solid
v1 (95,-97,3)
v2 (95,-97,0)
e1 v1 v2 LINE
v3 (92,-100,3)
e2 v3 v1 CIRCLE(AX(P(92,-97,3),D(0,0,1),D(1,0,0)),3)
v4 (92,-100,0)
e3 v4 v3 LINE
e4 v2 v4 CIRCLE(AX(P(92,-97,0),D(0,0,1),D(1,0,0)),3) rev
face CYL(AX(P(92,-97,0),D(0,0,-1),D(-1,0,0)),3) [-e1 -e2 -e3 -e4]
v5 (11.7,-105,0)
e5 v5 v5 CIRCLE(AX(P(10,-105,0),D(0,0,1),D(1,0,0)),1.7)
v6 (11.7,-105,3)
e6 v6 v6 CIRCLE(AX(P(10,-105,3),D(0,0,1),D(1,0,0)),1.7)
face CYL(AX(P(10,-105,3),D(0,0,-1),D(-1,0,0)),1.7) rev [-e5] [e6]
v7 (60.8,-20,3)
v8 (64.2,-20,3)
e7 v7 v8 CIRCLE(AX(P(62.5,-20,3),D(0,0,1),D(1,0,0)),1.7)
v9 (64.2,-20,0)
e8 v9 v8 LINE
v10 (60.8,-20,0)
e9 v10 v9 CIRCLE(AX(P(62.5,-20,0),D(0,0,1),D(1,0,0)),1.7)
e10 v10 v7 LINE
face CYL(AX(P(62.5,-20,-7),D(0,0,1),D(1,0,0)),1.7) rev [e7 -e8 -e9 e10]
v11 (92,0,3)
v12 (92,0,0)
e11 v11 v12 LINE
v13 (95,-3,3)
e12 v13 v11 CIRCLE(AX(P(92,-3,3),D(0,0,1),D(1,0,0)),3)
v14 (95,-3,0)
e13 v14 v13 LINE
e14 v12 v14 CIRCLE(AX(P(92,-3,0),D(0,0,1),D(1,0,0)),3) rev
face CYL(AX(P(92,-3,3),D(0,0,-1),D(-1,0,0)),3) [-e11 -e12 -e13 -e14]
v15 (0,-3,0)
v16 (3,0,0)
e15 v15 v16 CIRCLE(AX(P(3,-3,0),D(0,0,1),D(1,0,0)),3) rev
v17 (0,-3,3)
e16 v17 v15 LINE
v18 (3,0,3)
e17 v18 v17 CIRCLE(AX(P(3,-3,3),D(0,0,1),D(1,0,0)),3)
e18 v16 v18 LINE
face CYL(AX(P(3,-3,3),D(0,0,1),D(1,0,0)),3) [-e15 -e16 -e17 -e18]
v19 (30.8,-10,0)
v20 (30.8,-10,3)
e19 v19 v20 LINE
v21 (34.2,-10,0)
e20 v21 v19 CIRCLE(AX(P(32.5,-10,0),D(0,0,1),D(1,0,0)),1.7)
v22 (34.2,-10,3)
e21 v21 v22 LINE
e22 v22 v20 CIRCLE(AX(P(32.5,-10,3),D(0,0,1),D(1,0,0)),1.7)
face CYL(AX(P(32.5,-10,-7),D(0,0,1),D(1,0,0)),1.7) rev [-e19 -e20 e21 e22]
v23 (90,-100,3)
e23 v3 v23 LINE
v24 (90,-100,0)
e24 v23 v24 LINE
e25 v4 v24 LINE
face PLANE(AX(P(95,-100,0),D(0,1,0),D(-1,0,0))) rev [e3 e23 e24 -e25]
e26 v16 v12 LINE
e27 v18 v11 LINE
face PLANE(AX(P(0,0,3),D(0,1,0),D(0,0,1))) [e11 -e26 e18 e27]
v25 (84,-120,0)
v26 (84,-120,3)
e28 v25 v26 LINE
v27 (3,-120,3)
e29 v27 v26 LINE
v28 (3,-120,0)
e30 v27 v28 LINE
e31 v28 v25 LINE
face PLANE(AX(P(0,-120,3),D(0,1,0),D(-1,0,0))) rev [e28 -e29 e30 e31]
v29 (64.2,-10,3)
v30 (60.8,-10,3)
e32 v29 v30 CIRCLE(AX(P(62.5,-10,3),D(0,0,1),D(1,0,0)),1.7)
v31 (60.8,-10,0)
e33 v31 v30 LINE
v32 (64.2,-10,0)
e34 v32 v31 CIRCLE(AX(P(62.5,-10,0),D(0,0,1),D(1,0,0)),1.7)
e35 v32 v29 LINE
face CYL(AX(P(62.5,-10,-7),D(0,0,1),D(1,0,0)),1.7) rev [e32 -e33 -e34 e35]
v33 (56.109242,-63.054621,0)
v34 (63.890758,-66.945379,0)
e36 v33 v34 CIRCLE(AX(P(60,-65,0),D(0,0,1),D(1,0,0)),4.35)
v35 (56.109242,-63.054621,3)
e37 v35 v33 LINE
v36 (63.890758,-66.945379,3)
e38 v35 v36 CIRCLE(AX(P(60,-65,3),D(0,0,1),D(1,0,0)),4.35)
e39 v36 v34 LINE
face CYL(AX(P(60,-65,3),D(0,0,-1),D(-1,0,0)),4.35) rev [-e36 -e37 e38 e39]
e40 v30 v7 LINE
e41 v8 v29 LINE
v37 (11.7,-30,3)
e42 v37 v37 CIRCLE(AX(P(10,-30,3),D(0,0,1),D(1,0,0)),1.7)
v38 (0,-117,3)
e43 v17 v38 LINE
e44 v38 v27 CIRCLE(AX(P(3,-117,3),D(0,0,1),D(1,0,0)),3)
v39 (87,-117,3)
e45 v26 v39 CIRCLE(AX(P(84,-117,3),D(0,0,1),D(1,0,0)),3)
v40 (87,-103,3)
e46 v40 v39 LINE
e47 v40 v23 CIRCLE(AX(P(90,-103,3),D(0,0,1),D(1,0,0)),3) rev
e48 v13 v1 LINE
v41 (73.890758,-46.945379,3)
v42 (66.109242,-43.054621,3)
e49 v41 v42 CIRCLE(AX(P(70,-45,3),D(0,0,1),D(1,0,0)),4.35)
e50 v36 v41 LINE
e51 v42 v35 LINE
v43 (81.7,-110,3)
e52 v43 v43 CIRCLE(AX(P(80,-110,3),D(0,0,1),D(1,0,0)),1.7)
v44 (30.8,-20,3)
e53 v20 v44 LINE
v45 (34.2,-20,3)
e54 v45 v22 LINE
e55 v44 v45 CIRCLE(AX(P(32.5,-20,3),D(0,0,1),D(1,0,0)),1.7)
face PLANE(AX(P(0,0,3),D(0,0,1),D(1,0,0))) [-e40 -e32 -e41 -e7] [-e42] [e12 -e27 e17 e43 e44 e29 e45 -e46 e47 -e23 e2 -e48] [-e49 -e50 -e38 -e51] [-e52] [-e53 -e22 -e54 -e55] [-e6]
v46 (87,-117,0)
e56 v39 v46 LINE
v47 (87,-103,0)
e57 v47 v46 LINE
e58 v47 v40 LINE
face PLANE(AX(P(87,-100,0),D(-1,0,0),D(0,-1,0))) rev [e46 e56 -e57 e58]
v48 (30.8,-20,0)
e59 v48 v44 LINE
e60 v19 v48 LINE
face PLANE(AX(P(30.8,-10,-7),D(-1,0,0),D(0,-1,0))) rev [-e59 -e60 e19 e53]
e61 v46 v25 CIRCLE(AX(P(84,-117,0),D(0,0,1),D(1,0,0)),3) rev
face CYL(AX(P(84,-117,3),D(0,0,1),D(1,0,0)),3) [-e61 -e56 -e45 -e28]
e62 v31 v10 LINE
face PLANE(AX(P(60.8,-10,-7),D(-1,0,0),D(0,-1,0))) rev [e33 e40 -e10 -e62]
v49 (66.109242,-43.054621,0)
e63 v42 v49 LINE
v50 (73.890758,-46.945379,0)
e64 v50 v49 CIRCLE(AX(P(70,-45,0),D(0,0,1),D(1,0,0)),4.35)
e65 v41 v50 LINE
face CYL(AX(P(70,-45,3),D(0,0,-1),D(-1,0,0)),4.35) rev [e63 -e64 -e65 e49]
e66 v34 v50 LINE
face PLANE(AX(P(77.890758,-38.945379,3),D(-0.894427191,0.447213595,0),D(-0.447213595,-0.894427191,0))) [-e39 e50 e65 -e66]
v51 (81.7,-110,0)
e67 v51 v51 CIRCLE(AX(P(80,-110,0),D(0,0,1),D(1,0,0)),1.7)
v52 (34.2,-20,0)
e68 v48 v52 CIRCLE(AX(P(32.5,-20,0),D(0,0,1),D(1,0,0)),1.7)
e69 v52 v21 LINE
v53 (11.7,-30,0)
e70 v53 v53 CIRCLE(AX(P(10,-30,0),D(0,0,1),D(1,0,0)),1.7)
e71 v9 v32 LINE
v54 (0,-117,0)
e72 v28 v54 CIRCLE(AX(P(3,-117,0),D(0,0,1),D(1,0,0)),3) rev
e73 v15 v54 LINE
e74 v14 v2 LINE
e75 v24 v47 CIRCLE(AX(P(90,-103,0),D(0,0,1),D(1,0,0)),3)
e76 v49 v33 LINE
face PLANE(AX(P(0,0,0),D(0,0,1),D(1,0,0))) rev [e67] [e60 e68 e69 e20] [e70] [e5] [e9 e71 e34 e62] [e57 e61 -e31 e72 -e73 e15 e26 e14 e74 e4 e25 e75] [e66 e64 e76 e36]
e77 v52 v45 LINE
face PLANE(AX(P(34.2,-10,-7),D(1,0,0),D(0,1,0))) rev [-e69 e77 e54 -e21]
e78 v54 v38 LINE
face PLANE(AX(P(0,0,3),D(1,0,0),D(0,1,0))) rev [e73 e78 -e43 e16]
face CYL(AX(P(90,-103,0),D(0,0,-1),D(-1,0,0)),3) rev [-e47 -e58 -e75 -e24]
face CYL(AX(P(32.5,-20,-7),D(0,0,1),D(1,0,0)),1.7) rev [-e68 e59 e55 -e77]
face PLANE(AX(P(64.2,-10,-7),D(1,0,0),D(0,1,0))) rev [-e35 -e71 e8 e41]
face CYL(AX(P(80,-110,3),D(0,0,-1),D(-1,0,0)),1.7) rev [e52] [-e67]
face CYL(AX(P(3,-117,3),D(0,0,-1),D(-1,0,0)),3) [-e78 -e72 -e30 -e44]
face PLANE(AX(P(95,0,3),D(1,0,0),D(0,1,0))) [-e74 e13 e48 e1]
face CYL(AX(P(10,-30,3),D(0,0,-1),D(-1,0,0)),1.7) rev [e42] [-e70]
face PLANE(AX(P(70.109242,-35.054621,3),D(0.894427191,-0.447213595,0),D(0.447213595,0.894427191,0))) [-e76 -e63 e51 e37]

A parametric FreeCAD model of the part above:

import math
import FreeCAD as App
import Part
import Sketcher

V = App.Vector


def edges_at(feature, points):
    """Names of the edges that pass closest to the given points."""
    edges = feature.Shape.Edges
    near = lambda p: min(range(len(edges)), key=lambda i: edges[i].distToShape(Part.Vertex(*p))[0])
    return sorted({f"Edge{near(p) + 1}" for p in points})


def add_polygon(sketch, points):
    """Adds a closed chain of lines whose ends are joined by coincident constraints."""
    first, n = sketch.GeometryCount, len(points)
    for a, b in zip(points, points[1:] + points[:1]):
        sketch.addGeometry(Part.LineSegment(App.Vector(*a, 0), App.Vector(*b, 0)), False)
    for i in range(n):
        sketch.addConstraint(Sketcher.Constraint("Coincident", first + i, 2, first + (i + 1) % n, 1))

doc = App.newDocument("Part")
body = doc.addObject("PartDesign::Body", "Body")

sketch1 = doc.addObject("Sketcher::SketchObject", "Sketch")
body.addObject(sketch1)
sketch1.AttachmentSupport = (doc.XY_Plane, [""])
sketch1.MapMode = "FlatFace"
add_polygon(sketch1, [(0, 0), (0, -120), (95, -120), (95, 0)])
sketch1.addGeometry(Part.Circle(V(10, -105, 0), V(0, 0, 1), 1.7), False)
sketch1.addGeometry(Part.Circle(V(80, -110, 0), V(0, 0, 1), 1.7), False)
sketch1.addGeometry(Part.Circle(V(10, -30, 0), V(0, 0, 1), 1.7), False)
sketch1.addGeometry(Part.ArcOfCircle(Part.Circle(V(60, -65, 0), V(0, 0, 1), 4.35), math.radians(153.434949), math.radians(333.434949)), False)
sketch1.addGeometry(Part.LineSegment(V(56.109242, -63.054621, 0), V(66.109242, -43.054621, 0)), False)
sketch1.addGeometry(Part.ArcOfCircle(Part.Circle(V(70, -45, 0), V(0, 0, 1), 4.35), math.radians(0), math.radians(153.434949)), False)
sketch1.addGeometry(Part.ArcOfCircle(Part.Circle(V(70, -45, 0), V(0, 0, 1), 4.35), math.radians(-26.565051), math.radians(0)), False)
sketch1.addGeometry(Part.LineSegment(V(73.890758, -46.945379, 0), V(63.890758, -66.945379, 0)), False)
sketch1.addConstraint(Sketcher.Constraint("Tangent", 7, 1, 8, 1))
sketch1.addConstraint(Sketcher.Constraint("Tangent", 8, 2, 9, 2))
sketch1.addConstraint(Sketcher.Constraint("Tangent", 9, 1, 10, 2))
sketch1.addConstraint(Sketcher.Constraint("Tangent", 10, 1, 11, 1))
sketch1.addConstraint(Sketcher.Constraint("Tangent", 11, 2, 7, 2))
sketch1.addConstraint(Sketcher.Constraint("Vertical", 0))
sketch1.addConstraint(Sketcher.Constraint("Horizontal", 1))
sketch1.addConstraint(Sketcher.Constraint("Vertical", 2))
sketch1.addConstraint(Sketcher.Constraint("Horizontal", 3))
sketch1.addConstraint(Sketcher.Constraint("Coincident", 3, 2, -1, 1))
sketch1.addConstraint(Sketcher.Constraint("Equal", 4, 5))
sketch1.addConstraint(Sketcher.Constraint("Equal", 5, 6))
sketch1.addConstraint(Sketcher.Constraint("Equal", 7, 9))
sketch1.addConstraint(Sketcher.Constraint("Equal", 9, 10))
sketch1.addConstraint(Sketcher.Constraint("Horizontal", 10, 3, 9, 1))
sketch1.addConstraint(Sketcher.Constraint("Vertical", 4, 3, 6, 3))
sketch1.addConstraint(Sketcher.Constraint("Diameter", 4, 3.4))
sketch1.addConstraint(Sketcher.Constraint("DistanceX", 1, 1, 1, 2, 95.0))
sketch1.addConstraint(Sketcher.Constraint("DistanceY", 0, 2, 0, 1, 120.0))
sketch1.addConstraint(Sketcher.Constraint("Radius", 7, 4.35))
sketch1.addConstraint(Sketcher.Constraint("DistanceX", -1, 1, 4, 3, 10.0))
sketch1.addConstraint(Sketcher.Constraint("DistanceY", 4, 3, -1, 1, 105.0))
sketch1.addConstraint(Sketcher.Constraint("DistanceX", -1, 1, 5, 3, 80.0))
sketch1.addConstraint(Sketcher.Constraint("DistanceY", 5, 3, -1, 1, 110.0))
sketch1.addConstraint(Sketcher.Constraint("DistanceY", 6, 3, -1, 1, 30.0))
sketch1.addConstraint(Sketcher.Constraint("DistanceX", -1, 1, 7, 3, 60.0))
sketch1.addConstraint(Sketcher.Constraint("DistanceY", 7, 3, -1, 1, 65.0))
sketch1.addConstraint(Sketcher.Constraint("DistanceX", -1, 1, 9, 3, 70.0))
sketch1.addConstraint(Sketcher.Constraint("DistanceY", 9, 3, -1, 1, 45.0))
pad1 = doc.addObject("PartDesign::Pad", "Pad")
body.addObject(pad1)
pad1.Profile = sketch1
pad1.Length = 3
doc.recompute()

fillet = doc.addObject("PartDesign::Fillet", "Fillet")
body.addObject(fillet)
fillet.Base = (pad1, edges_at(pad1, [
    (0, -120, 1.5),
    (0, 0, 1.5),
    (95, 0, 1.5),
    (95, -120, 1.5),
]))
fillet.Radius = 3

sketch2 = doc.addObject("Sketcher::SketchObject", "Sketch001")
body.addObject(sketch2)
sketch2.AttachmentSupport = (doc.XY_Plane, [""])
sketch2.MapMode = "FlatFace"
sketch2.AttachmentOffset = App.Placement(V(0, 0, 3), App.Rotation())
sketch2.addGeometry(Part.LineSegment(V(30.8, -10, 0), V(30.8, -20, 0)), False)
sketch2.addGeometry(Part.ArcOfCircle(Part.Circle(V(32.5, -20, 0), V(0, 0, 1), 1.7), math.radians(180), math.radians(360)), False)
sketch2.addGeometry(Part.LineSegment(V(34.2, -20, 0), V(34.2, -10, 0)), False)
sketch2.addGeometry(Part.ArcOfCircle(Part.Circle(V(32.5, -10, 0), V(0, 0, 1), 1.7), math.radians(0), math.radians(180)), False)
sketch2.addGeometry(Part.LineSegment(V(60.8, -10, 0), V(60.8, -20, 0)), False)
sketch2.addGeometry(Part.ArcOfCircle(Part.Circle(V(62.5, -20, 0), V(0, 0, 1), 1.7), math.radians(180), math.radians(360)), False)
sketch2.addGeometry(Part.LineSegment(V(64.2, -20, 0), V(64.2, -10, 0)), False)
sketch2.addGeometry(Part.ArcOfCircle(Part.Circle(V(62.5, -10, 0), V(0, 0, 1), 1.7), math.radians(0), math.radians(180)), False)
sketch2.addConstraint(Sketcher.Constraint("Tangent", 0, 2, 1, 1))
sketch2.addConstraint(Sketcher.Constraint("Tangent", 1, 2, 2, 1))
sketch2.addConstraint(Sketcher.Constraint("Tangent", 2, 2, 3, 1))
sketch2.addConstraint(Sketcher.Constraint("Tangent", 3, 2, 0, 1))
sketch2.addConstraint(Sketcher.Constraint("Tangent", 4, 2, 5, 1))
sketch2.addConstraint(Sketcher.Constraint("Tangent", 5, 2, 6, 1))
sketch2.addConstraint(Sketcher.Constraint("Tangent", 6, 2, 7, 1))
sketch2.addConstraint(Sketcher.Constraint("Tangent", 7, 2, 4, 1))
sketch2.addConstraint(Sketcher.Constraint("Vertical", 0))
sketch2.addConstraint(Sketcher.Constraint("Vertical", 2))
sketch2.addConstraint(Sketcher.Constraint("Vertical", 4))
sketch2.addConstraint(Sketcher.Constraint("Vertical", 6))
sketch2.addConstraint(Sketcher.Constraint("Equal", 3, 5))
sketch2.addConstraint(Sketcher.Constraint("Horizontal", 1, 3, 5, 3))
sketch2.addConstraint(Sketcher.Constraint("Horizontal", 3, 3, 7, 3))
sketch2.addConstraint(Sketcher.Constraint("Radius", 1, 1.7))
sketch2.addConstraint(Sketcher.Constraint("DistanceY", 0, 2, 0, 1, 10.0))
sketch2.addConstraint(Sketcher.Constraint("DistanceY", 1, 3, -1, 1, 20.0))
sketch2.addConstraint(Sketcher.Constraint("DistanceX", 1, 3, 5, 3, 30.0))
sketch2.addConstraint(Sketcher.Constraint("DistanceX", -1, 1, 1, 3, 32.5))
pocket1 = doc.addObject("PartDesign::Pocket", "Pocket")
body.addObject(pocket1)
pocket1.Profile = sketch2
pocket1.Length = 10

sketch3 = doc.addObject("Sketcher::SketchObject", "Sketch002")
body.addObject(sketch3)
sketch3.AttachmentSupport = (doc.XY_Plane, [""])
sketch3.MapMode = "FlatFace"
sketch3.AttachmentOffset = App.Placement(V(0, 0, 3), App.Rotation())
add_polygon(sketch3, [(87, -100), (87, -120), (95, -120), (95, -100)])
sketch3.addConstraint(Sketcher.Constraint("Vertical", 0))
sketch3.addConstraint(Sketcher.Constraint("Horizontal", 1))
sketch3.addConstraint(Sketcher.Constraint("Vertical", 2))
sketch3.addConstraint(Sketcher.Constraint("Horizontal", 3))
sketch3.addConstraint(Sketcher.Constraint("DistanceX", 1, 1, 1, 2, 8.0))
sketch3.addConstraint(Sketcher.Constraint("DistanceY", 0, 2, 0, 1, 20.0))
sketch3.addConstraint(Sketcher.Constraint("DistanceX", -1, 1, 0, 2, 87.0))
sketch3.addConstraint(Sketcher.Constraint("DistanceY", 0, 2, -1, 1, 120.0))
pocket2 = doc.addObject("PartDesign::Pocket", "Pocket001")
body.addObject(pocket2)
pocket2.Profile = sketch3
pocket2.Type = "ThroughAll"
doc.recompute()

fillet2 = doc.addObject("PartDesign::Fillet", "Fillet001")
body.addObject(fillet2)
fillet2.Base = (pocket2, edges_at(pocket2, [(95, -100, 1.5), (87, -120, 1.5), (87, -100, 1.5)]))
fillet2.Radius = 3

doc.recompute()
